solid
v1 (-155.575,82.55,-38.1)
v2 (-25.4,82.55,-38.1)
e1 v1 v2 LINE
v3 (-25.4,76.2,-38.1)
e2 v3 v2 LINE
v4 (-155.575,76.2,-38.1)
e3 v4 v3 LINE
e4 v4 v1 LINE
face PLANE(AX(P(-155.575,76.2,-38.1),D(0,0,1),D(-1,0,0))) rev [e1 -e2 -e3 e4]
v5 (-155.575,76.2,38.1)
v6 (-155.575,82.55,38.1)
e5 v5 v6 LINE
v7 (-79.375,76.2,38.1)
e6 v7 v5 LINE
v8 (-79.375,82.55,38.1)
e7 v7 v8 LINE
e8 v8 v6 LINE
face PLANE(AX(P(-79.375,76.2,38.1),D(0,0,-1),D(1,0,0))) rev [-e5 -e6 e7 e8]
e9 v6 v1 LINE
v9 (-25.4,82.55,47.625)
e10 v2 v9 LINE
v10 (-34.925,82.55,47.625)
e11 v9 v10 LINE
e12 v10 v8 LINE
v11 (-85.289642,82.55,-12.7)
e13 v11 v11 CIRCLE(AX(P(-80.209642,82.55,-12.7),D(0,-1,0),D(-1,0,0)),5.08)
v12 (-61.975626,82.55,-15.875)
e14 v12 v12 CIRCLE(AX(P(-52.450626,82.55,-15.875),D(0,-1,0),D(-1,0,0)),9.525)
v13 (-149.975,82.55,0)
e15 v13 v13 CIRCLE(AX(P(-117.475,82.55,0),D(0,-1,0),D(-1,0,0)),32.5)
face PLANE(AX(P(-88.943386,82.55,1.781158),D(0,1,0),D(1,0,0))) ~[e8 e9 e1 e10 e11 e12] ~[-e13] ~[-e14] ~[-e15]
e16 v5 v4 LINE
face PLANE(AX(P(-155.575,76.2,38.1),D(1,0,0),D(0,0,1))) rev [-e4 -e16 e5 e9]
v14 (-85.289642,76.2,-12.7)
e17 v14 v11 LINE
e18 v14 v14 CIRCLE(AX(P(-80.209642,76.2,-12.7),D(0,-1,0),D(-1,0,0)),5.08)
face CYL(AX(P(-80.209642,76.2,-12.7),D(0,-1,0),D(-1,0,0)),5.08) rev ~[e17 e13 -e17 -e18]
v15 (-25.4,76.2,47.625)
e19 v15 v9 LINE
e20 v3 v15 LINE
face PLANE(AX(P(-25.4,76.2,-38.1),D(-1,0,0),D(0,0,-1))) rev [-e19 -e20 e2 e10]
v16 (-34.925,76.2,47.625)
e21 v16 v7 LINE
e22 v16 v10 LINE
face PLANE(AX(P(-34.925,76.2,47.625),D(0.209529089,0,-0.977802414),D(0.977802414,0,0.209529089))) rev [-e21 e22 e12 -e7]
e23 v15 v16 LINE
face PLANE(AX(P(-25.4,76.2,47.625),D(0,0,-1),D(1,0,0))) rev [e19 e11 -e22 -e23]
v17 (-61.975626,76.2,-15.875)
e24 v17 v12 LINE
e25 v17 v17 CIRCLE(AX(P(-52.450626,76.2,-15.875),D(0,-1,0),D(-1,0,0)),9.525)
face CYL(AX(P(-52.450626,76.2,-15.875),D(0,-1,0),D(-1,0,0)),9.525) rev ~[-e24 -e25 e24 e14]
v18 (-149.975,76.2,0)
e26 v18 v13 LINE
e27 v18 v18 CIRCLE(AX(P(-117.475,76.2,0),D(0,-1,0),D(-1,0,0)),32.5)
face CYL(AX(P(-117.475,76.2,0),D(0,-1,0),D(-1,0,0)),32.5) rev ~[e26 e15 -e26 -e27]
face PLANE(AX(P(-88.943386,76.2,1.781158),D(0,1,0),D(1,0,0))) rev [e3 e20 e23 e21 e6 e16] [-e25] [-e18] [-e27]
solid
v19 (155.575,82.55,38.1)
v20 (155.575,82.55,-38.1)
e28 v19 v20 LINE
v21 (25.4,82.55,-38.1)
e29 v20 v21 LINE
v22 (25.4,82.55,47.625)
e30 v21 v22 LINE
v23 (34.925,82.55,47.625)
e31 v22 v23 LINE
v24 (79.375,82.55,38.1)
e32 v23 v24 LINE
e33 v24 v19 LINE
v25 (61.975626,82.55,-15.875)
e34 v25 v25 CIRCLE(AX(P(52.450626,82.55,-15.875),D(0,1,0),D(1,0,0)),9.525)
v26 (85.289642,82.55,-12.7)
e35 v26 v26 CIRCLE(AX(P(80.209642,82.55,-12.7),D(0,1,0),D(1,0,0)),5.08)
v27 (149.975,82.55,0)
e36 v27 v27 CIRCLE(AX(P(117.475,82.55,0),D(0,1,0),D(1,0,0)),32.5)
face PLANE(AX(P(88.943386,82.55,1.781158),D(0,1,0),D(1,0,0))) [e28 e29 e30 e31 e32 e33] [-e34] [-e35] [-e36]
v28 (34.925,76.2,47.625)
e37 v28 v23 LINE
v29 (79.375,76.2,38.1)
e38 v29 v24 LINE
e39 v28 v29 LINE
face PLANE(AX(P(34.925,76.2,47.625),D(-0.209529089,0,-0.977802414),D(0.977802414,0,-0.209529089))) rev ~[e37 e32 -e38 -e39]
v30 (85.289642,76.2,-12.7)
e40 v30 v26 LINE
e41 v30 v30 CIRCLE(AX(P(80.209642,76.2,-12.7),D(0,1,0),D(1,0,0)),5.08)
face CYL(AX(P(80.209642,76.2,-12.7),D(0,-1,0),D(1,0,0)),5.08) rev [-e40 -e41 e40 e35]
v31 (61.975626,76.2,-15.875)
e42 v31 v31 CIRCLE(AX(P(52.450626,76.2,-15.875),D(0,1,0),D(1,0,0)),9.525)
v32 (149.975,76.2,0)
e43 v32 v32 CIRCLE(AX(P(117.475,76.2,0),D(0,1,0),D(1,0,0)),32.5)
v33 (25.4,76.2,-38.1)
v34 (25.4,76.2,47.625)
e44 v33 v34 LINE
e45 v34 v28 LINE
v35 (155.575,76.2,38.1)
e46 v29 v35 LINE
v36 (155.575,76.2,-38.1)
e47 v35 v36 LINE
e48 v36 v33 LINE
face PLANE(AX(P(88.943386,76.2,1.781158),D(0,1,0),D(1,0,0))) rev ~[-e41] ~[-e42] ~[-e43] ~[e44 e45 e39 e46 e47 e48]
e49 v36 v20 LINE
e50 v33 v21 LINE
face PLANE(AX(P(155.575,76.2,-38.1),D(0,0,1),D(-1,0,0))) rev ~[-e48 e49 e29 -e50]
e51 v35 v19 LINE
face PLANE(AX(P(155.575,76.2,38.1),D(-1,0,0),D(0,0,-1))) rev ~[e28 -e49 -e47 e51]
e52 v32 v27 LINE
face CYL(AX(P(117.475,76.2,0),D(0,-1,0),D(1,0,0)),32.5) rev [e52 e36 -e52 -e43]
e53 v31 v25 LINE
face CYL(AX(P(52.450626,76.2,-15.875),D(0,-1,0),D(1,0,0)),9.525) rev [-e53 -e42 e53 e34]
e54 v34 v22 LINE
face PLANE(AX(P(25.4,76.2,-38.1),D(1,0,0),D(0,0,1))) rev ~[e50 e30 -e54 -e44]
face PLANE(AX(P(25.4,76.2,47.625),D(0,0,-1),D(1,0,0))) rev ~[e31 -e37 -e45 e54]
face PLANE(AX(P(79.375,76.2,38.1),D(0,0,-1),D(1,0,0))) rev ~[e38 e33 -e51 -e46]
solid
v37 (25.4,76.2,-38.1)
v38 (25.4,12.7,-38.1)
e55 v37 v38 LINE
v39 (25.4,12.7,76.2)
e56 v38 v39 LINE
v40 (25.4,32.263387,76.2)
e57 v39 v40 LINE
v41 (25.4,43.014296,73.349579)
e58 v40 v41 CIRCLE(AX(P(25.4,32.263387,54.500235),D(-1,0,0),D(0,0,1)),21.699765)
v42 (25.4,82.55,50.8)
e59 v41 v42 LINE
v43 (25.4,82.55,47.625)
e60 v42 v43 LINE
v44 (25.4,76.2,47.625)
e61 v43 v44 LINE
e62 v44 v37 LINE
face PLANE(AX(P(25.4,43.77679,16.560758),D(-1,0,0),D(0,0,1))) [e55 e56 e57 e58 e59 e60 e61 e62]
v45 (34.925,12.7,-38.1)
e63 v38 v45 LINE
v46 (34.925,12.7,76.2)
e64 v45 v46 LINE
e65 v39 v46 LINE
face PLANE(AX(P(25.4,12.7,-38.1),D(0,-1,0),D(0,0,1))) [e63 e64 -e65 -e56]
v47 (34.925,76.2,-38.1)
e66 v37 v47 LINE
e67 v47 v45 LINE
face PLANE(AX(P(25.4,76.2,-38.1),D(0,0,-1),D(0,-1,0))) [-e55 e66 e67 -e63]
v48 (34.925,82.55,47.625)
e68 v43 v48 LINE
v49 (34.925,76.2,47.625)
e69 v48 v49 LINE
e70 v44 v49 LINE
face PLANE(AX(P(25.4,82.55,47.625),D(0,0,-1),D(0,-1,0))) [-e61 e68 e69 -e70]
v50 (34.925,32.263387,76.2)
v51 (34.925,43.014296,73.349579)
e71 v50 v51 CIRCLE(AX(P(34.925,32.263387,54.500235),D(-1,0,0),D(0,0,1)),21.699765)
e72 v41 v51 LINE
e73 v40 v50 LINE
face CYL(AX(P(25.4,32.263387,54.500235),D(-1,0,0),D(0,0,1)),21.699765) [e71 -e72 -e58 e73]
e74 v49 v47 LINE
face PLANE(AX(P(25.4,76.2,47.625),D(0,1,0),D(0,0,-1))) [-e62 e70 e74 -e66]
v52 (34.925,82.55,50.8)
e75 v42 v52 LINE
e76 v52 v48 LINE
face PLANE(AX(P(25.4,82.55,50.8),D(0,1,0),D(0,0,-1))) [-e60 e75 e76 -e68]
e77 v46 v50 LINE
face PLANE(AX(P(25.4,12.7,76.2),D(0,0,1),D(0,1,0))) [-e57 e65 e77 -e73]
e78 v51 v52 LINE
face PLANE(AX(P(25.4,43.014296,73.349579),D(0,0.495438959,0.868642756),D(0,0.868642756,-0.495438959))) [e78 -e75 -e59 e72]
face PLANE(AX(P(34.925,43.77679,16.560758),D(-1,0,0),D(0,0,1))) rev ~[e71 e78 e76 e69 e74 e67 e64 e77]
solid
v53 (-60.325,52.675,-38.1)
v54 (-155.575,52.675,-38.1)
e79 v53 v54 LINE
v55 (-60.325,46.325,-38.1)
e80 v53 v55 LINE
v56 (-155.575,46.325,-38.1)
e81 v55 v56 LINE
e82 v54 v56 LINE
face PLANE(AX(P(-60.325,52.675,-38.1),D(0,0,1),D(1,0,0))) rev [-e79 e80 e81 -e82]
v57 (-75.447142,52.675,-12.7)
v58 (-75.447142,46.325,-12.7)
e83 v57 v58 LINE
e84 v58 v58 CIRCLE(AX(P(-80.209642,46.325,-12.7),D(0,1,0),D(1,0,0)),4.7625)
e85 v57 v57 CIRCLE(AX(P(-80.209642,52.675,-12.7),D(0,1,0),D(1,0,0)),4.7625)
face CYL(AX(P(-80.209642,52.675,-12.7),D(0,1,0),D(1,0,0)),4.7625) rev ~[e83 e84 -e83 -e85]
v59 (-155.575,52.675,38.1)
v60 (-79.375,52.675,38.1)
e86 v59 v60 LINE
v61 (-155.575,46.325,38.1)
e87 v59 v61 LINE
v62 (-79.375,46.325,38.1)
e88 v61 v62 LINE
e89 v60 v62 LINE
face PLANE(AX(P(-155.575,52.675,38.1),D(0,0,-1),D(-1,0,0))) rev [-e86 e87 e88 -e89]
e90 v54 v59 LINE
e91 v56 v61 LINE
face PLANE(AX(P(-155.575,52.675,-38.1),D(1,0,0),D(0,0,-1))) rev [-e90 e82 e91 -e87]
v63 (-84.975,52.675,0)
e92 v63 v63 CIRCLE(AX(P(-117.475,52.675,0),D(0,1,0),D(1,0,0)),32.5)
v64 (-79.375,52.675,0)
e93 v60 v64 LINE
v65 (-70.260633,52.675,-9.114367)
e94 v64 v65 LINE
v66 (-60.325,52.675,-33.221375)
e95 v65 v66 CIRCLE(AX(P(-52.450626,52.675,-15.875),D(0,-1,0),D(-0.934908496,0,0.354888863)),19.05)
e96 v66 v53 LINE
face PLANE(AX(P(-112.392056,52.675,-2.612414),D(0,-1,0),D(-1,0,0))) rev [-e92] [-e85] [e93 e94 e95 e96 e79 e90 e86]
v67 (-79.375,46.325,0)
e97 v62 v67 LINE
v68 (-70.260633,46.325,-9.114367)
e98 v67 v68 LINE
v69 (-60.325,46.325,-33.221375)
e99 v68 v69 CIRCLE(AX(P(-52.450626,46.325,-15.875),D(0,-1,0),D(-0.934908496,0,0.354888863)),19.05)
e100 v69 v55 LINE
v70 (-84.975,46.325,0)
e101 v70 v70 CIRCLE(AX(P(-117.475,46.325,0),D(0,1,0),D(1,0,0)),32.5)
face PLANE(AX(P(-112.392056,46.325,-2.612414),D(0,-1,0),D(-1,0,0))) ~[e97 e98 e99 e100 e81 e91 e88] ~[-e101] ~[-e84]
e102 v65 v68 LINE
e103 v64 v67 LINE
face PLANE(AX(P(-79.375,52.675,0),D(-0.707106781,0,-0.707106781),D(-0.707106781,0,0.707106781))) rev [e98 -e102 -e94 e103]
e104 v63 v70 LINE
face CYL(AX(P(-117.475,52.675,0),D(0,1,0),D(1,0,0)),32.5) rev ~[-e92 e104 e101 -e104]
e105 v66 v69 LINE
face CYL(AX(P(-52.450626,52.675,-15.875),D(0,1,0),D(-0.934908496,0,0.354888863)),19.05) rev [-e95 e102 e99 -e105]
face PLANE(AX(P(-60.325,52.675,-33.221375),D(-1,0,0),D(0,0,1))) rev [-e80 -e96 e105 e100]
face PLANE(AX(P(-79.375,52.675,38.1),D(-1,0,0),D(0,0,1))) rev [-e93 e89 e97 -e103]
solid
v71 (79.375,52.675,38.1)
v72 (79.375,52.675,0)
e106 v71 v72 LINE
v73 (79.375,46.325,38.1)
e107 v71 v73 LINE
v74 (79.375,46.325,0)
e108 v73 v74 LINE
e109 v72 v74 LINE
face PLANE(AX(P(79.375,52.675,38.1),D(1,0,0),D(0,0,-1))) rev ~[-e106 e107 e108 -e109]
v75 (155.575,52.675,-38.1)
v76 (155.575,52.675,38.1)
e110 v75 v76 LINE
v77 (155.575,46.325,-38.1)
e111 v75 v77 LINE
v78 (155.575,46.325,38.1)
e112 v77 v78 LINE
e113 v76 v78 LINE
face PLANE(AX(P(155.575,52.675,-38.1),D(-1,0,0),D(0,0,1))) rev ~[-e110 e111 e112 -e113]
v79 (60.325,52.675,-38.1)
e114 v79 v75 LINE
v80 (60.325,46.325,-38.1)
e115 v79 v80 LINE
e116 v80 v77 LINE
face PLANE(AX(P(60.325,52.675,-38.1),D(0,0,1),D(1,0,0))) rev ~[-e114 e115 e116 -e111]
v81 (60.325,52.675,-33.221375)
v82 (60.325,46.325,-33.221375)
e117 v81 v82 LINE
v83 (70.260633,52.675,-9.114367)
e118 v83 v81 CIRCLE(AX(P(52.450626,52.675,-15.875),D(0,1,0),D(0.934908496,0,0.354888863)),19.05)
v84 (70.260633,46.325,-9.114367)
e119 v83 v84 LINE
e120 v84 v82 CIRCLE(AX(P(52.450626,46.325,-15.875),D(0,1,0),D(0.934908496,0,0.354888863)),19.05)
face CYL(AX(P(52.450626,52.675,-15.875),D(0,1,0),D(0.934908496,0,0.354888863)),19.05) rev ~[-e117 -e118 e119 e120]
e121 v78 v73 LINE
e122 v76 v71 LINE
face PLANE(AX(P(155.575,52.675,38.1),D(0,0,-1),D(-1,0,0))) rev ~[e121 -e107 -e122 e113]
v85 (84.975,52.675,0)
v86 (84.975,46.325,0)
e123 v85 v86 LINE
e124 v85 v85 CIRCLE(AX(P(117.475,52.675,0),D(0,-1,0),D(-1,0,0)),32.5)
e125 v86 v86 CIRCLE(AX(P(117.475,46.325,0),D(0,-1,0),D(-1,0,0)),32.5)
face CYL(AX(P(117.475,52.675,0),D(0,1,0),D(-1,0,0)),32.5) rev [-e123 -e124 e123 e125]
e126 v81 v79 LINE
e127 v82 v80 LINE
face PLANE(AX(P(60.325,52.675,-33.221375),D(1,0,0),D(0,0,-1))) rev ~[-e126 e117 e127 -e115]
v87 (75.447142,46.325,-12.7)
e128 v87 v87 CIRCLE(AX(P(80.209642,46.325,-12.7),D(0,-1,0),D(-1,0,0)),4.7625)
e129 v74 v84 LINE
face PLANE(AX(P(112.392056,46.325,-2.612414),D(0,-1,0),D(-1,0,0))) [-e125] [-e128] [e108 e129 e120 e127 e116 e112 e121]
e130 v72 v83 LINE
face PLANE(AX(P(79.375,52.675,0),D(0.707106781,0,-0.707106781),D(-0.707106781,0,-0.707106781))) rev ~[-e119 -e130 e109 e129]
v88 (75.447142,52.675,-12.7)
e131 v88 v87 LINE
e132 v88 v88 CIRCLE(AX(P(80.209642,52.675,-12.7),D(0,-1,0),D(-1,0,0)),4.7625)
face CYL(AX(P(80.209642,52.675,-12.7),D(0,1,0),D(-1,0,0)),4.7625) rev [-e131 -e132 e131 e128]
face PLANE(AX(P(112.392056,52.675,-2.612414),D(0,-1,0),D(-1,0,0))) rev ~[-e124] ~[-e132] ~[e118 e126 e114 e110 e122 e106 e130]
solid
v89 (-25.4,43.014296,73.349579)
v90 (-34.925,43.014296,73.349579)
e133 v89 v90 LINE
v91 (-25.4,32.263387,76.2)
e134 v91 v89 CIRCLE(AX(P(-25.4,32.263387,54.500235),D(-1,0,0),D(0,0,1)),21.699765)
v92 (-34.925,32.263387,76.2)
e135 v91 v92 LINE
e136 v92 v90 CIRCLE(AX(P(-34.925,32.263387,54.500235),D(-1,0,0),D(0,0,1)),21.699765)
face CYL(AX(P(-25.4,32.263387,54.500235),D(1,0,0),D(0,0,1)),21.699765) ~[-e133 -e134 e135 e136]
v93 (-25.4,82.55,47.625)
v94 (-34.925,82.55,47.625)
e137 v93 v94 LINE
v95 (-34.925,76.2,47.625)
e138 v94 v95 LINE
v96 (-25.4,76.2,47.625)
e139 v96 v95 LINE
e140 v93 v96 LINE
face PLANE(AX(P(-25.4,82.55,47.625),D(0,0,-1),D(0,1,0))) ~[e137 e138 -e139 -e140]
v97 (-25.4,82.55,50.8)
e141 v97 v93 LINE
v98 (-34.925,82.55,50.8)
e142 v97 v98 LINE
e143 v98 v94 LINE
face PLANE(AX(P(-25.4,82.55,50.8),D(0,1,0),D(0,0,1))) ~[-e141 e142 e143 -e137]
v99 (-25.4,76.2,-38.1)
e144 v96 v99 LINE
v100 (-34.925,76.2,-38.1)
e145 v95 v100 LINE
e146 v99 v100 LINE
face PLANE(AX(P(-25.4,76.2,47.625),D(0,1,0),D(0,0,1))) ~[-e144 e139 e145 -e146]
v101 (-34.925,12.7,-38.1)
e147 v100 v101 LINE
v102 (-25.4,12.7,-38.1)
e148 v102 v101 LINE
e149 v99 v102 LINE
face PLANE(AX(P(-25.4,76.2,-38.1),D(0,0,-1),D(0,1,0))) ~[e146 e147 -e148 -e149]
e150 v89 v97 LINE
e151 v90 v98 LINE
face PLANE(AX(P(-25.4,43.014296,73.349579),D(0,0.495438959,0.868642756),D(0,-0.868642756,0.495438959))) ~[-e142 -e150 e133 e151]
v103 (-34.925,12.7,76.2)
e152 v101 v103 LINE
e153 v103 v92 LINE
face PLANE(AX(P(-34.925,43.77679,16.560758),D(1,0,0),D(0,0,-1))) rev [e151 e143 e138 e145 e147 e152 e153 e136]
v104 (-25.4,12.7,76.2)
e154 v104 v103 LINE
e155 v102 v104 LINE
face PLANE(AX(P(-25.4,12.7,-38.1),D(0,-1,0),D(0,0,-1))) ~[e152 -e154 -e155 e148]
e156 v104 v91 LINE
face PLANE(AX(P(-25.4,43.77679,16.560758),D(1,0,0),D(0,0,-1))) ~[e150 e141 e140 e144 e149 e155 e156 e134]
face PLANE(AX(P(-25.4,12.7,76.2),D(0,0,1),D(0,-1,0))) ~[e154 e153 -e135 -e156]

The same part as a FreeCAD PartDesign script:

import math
import FreeCAD as App
import Part
import Sketcher
Q = App.Units.Quantity


def add_polygon(sketch, points):
    """Adds a closed chain of lines whose ends are joined by coincident constraints."""
    first, n = sketch.GeometryCount, len(points)
    for a, b in zip(points, points[1:] + points[:1]):
        sketch.addGeometry(Part.LineSegment(App.Vector(*a, 0), App.Vector(*b, 0)), False)
    for i in range(n):
        sketch.addConstraint(Sketcher.Constraint("Coincident", first + i, 2, first + (i + 1) % n, 1))

doc = App.newDocument("Part")
body = doc.addObject("PartDesign::Body", "Body")

# Sketch on YZ plane
sketch1 = body.newObject("Sketcher::SketchObject", "Sketch")
sketch1.AttachmentSupport = (doc.getObject("YZ_Plane"), [""])
sketch1.MapMode = "FlatFace"
sketch1.AttachmentOffset = App.Placement(App.Vector(0, 0, 1 * 25.4), App.Rotation())
sketch1.addGeometry([
    Part.LineSegment(App.Vector(82.5, 50.8, 0), App.Vector(43, 73.3, 0)),  # 0
    Part.ArcOfCircle(Part.Circle(App.Vector(32.3, 54.5, 0), App.Vector(0, 0, 1), 21.7), math.radians(60), math.radians(90)),  # 1
    Part.LineSegment(App.Vector(32.3, 76.2, 0), App.Vector(12.7, 76.2, 0)),  # 2
    Part.LineSegment(App.Vector(12.7, 76.2, 0), App.Vector(12.7, -38.1, 0)),  # 3
    Part.LineSegment(App.Vector(12.7, -38.1, 0), App.Vector(76.2, -38.1, 0)),  # 4
    Part.LineSegment(App.Vector(76.2, -38.1, 0), App.Vector(76.2, 47.6, 0)),  # 5
    Part.LineSegment(App.Vector(76.2, 47.6, 0), App.Vector(82.5, 47.6, 0)),  # 6
    Part.LineSegment(App.Vector(82.5, 47.6, 0), App.Vector(82.5, 50.8, 0)),  # 7
], False)
sketch1.addConstraint([
    Sketcher.Constraint("Tangent", 0, 2, 1, 1),
    Sketcher.Constraint("Tangent", 1, 2, 2, 1),
    Sketcher.Constraint("Coincident", 2, 2, 3, 1),
    Sketcher.Constraint("Coincident", 3, 2, 4, 1),
    Sketcher.Constraint("Coincident", 4, 2, 5, 1),
    Sketcher.Constraint("Coincident", 5, 2, 6, 1),
    Sketcher.Constraint("Coincident", 6, 2, 7, 1),
    Sketcher.Constraint("Coincident", 7, 2, 0, 1),
    Sketcher.Constraint("Horizontal", 2),
    Sketcher.Constraint("Vertical", 3),
    Sketcher.Constraint("Horizontal", 4),
    Sketcher.Constraint("Vertical", 5),
    Sketcher.Constraint("Horizontal", 6),
    Sketcher.Constraint("Vertical", 7),
    Sketcher.Constraint("DistanceX", 4, 1, 4, 2, Q("2.5 in")),
    Sketcher.Constraint("DistanceY", 3, 2, 3, 1, Q("4.5 in")),
    Sketcher.Constraint("DistanceY", -1, 1, 1, 2, Q("3 in")),
    Sketcher.Constraint("DistanceX", -1, 1, 4, 2, Q("3 in")),
    Sketcher.Constraint("DistanceY", -1, 1, 7, 2, Q("2 in")),
    Sketcher.Constraint("DistanceX", 6, 1, 6, 2, Q("0.25 in")),
    Sketcher.Constraint("DistanceY", 5, 1, 5, 2, Q("3.375 in")),
    Sketcher.Constraint("Radius", 1, 21.699765),
    Sketcher.Constraint("DistanceY", 1, 3, 0, 2, Q("0.7421001 in")),
])
pad1 = body.newObject("PartDesign::Pad", "Pad")
pad1.Profile = sketch1
pad1.Length = Q("0.375 in")
body2 = doc.addObject("PartDesign::Body", "Body001")

# Sketch on XZ plane
sketch2 = body2.newObject("Sketcher::SketchObject", "Sketch001")
sketch2.AttachmentSupport = (doc.getObject("XZ_Plane001"), [""])
sketch2.MapMode = "FlatFace"
sketch2.AttachmentOffset = App.Placement(App.Vector(0, 0, -3 * 25.4), App.Rotation())
add_polygon(sketch2, [(25, 48), (35, 48), (79, 38), (156, 38), (156, -38), (25, -38)])  # lines 0-5
sketch2.addGeometry(Part.Circle(App.Vector(52, -16, 0), App.Vector(0, 0, 1), 10), False)  # 6
sketch2.addGeometry(Part.Circle(App.Vector(80, -13, 0), App.Vector(0, 0, 1), 5), False)  # 7
sketch2.addGeometry(Part.Circle(App.Vector(117, 0, 0), App.Vector(0, 0, 1), 32), False)  # 8
sketch2.addConstraint([
    Sketcher.Constraint("Horizontal", 0),
    Sketcher.Constraint("Horizontal", 2),
    Sketcher.Constraint("Vertical", 3),
    Sketcher.Constraint("Horizontal", 4),
    Sketcher.Constraint("Vertical", 5),
    Sketcher.Constraint("PointOnObject", 8, 3, -1),
    Sketcher.Constraint("Equal", 2, 3),
    Sketcher.Constraint("Diameter", 7, Q("0.4 in")),
    Sketcher.Constraint("Diameter", 6, Q("0.75 in")),
    Sketcher.Constraint("DistanceX", 2, 1, 2, 2, Q("3 in")),
    Sketcher.Constraint("DistanceX", -1, 1, 4, 2, Q("1 in")),
    Sketcher.Constraint("DistanceY", 7, 3, 1, 2, Q("2 in")),
    Sketcher.Constraint("DistanceY", 7, 3, -1, 1, Q("0.5 in")),
    Sketcher.Constraint("DistanceY", 6, 3, 0, 2, Q("2.5 in")),
    Sketcher.Constraint("DistanceX", 1, 2, 8, 3, Q("1.5 in")),
    Sketcher.Constraint("Diameter", 8, 65.0),
    Sketcher.Constraint("DistanceX", 0, 1, 0, 2, Q("0.375 in")),
    Sketcher.Constraint("DistanceX", 4, 2, 4, 1, Q("5.125 in")),
    Sketcher.Constraint("DistanceY", 5, 1, 5, 2, Q("3.375 in")),
    Sketcher.Constraint("DistanceX", -1, 1, 6, 3, 52.450626),
    Sketcher.Constraint("DistanceX", -1, 1, 7, 3, 80.209642),
])
pad2 = body2.newObject("PartDesign::Pad", "Pad001")
pad2.Profile = sketch2
pad2.Length = Q("0.25 in")
pad2.Reversed = True
body3 = doc.addObject("PartDesign::Body", "Body002")

# Sketch on XZ plane
sketch3 = body3.newObject("Sketcher::SketchObject", "Sketch002")
sketch3.AttachmentSupport = (doc.getObject("XZ_Plane002"), [""])
sketch3.MapMode = "FlatFace"
sketch3.AttachmentOffset = App.Placement(App.Vector(0, 0, -52.675), App.Rotation())
sketch3.addGeometry([
    Part.LineSegment(App.Vector(60.3, -33.2, 0), App.Vector(60.3, -38.1, 0)),  # 0
    Part.LineSegment(App.Vector(60.3, -38.1, 0), App.Vector(155.6, -38.1, 0)),  # 1
    Part.LineSegment(App.Vector(155.6, -38.1, 0), App.Vector(155.6, 38.1, 0)),  # 2
    Part.LineSegment(App.Vector(155.6, 38.1, 0), App.Vector(79.4, 38.1, 0)),  # 3
    Part.LineSegment(App.Vector(79.4, 38.1, 0), App.Vector(79.4, 0, 0)),  # 4
    Part.LineSegment(App.Vector(79.4, 0, 0), App.Vector(70.3, -9.1, 0)),  # 5
    Part.ArcOfCircle(Part.Circle(App.Vector(52.5, -15.9, 0), App.Vector(0, 0, 1), 19.1), math.radians(-66), math.radians(21)),  # 6
    Part.Circle(App.Vector(117.5, 0, 0), App.Vector(0, 0, 1), 32.5),  # 7
    Part.Circle(App.Vector(80.2, -12.7, 0), App.Vector(0, 0, 1), 4.8),  # 8
], False)
sketch3.addConstraint([
    Sketcher.Constraint("Coincident", 0, 2, 1, 1),
    Sketcher.Constraint("Coincident", 1, 2, 2, 1),
    Sketcher.Constraint("Coincident", 2, 2, 3, 1),
    Sketcher.Constraint("Coincident", 3, 2, 4, 1),
    Sketcher.Constraint("Coincident", 4, 2, 5, 1),
    Sketcher.Constraint("Coincident", 5, 2, 6, 2),
    Sketcher.Constraint("Coincident", 6, 1, 0, 1),
    Sketcher.Constraint("Vertical", 0),
    Sketcher.Constraint("Horizontal", 1),
    Sketcher.Constraint("Vertical", 2),
    Sketcher.Constraint("Horizontal", 3),
    Sketcher.Constraint("Vertical", 4),
    Sketcher.Constraint("PointOnObject", 7, 3, -1),
    Sketcher.Constraint("PointOnObject", 4, 2, -1),
    Sketcher.Constraint("Equal", 3, 2),
    Sketcher.Constraint("DistanceX", 3, 2, 3, 1, Q("3 in")),
    Sketcher.Constraint("Radius", 6, Q("0.75 in")),
    Sketcher.Constraint("Diameter", 8, Q("0.375 in")),
    Sketcher.Constraint("DistanceY", 4, 2, 4, 1, Q("1.5 in")),
    Sketcher.Constraint("Angle", 5, Q("-135 deg")),
    Sketcher.Constraint("DistanceY", 0, 2, 8, 3, Q("1 in")),
    Sketcher.Constraint("DistanceX", 1, 1, 1, 2, Q("3.75 in")),
    Sketcher.Constraint("DistanceX", 7, 3, 1, 2, Q("1.5 in")),
    Sketcher.Constraint("Diameter", 7, 65.0),
    Sketcher.Constraint("DistanceY", 6, 3, -1, 1, Q("0.625 in")),
    Sketcher.Constraint("DistanceX", -1, 1, 7, 3, Q("4.625 in")),
    Sketcher.Constraint("Distance", 5, 12.889662),
    Sketcher.Constraint("DistanceX", 5, 2, 8, 3, 9.949009),
])
pad3 = body3.newObject("PartDesign::Pad", "Pad002")
pad3.Profile = sketch3
pad3.Length = Q("0.25 in")
body4 = doc.addObject("PartDesign::Body", "Body003")
doc.recompute()

mirroring = doc.addObject("Part::Mirroring", "Mirroring")
mirroring.Source = body
mirroring.Base = App.Vector(0, 0, 0)
mirroring.Normal = App.Vector(1, 0, 0)
body4.BaseFeature = mirroring
doc.recompute()
body5 = doc.addObject("PartDesign::Body", "Body004")
doc.recompute()

mirroring2 = doc.addObject("Part::Mirroring", "Mirroring001")
mirroring2.Source = body2
mirroring2.Base = App.Vector(0, 0, 0)
mirroring2.Normal = App.Vector(1, 0, 0)
body5.BaseFeature = mirroring2
doc.recompute()
body6 = doc.addObject("PartDesign::Body", "Body005")
doc.recompute()

mirroring3 = doc.addObject("Part::Mirroring", "Mirroring002")
mirroring3.Source = body3
mirroring3.Base = App.Vector(0, 0, 0)
mirroring3.Normal = App.Vector(1, 0, 0)
body6.BaseFeature = mirroring3
doc.recompute()
mirroring.Visibility = False
mirroring2.Visibility = False
mirroring3.Visibility = False

doc.recompute()
